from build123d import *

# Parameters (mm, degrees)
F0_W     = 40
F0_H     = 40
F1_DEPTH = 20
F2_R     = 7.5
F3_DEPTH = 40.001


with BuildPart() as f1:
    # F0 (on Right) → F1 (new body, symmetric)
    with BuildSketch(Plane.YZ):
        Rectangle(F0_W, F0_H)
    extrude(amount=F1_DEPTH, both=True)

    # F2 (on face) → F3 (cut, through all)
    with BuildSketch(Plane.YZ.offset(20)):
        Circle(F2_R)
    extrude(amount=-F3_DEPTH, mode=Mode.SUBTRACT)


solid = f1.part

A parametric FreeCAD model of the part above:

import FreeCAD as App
import Part
import Sketcher


def add_polygon(sketch, points):
    """Adds a closed chain of lines whose ends are joined by coincident constraints."""
    first, n = sketch.GeometryCount, len(points)
    for a, b in zip(points, points[1:] + points[:1]):
        sketch.addGeometry(Part.LineSegment(App.Vector(*a, 0), App.Vector(*b, 0)), False)
    for i in range(n):
        sketch.addConstraint(Sketcher.Constraint("Coincident", first + i, 2, first + (i + 1) % n, 1))

doc = App.newDocument("Part")
params = doc.addObject("Spreadsheet::Sheet", "Params")
for row, (alias, value) in enumerate([
    ("sketch1_width", "40 mm"),
    ("pad1_length", "40 mm"),
    ("sketch2_diameter", "15 mm"),
], start=1):
    params.set(f"A{row}", alias)
    params.set(f"B{row}", "=" + value)
    params.setAlias(f"B{row}", alias)

body = doc.addObject("PartDesign::Body", "Body")

sketch1 = body.newObject("Sketcher::SketchObject", "Sketch")
sketch1.AttachmentSupport = (doc.getObject("YZ_Plane"), [""])
sketch1.MapMode = "FlatFace"
add_polygon(sketch1, [(-20, 20), (-20, -20), (20, -20), (20, 20)])
sketch1.addConstraint([
    Sketcher.Constraint("Vertical", 0),
    Sketcher.Constraint("Horizontal", 1),
    Sketcher.Constraint("Vertical", 2),
    Sketcher.Constraint("Horizontal", 3),
    Sketcher.Constraint("Symmetric", 0, 2, 2, 2, -1, 1),
    Sketcher.Constraint("Equal", 3, 0),
    Sketcher.Constraint("DistanceX", 1, 1, 1, 2, 40.0),
])
sketch1.setExpression("Constraints[10]", "Params.sketch1_width")
pad1 = body.newObject("PartDesign::Pad", "Pad")
pad1.Profile = sketch1
pad1.setExpression("Length", "Params.pad1_length")
pad1.Midplane = True

sketch2 = body.newObject("Sketcher::SketchObject", "Sketch001")
sketch2.AttachmentSupport = (doc.getObject("YZ_Plane"), [""])
sketch2.MapMode = "FlatFace"
sketch2.AttachmentOffset = App.Placement(App.Vector(0, 0, 20), App.Rotation())
sketch2.addGeometry(Part.Circle(App.Vector(0, 0, 0), App.Vector(0, 0, 1), 7.5), False)
sketch2.addConstraint([
    Sketcher.Constraint("Coincident", 0, 3, -1, 1),
    Sketcher.Constraint("Diameter", 0, 15.0),
])
sketch2.setExpression("Constraints[1]", "Params.sketch2_diameter")
pocket1 = body.newObject("PartDesign::Pocket", "Pocket")
pocket1.Profile = sketch2
pocket1.Type = "ThroughAll"

doc.recompute()
